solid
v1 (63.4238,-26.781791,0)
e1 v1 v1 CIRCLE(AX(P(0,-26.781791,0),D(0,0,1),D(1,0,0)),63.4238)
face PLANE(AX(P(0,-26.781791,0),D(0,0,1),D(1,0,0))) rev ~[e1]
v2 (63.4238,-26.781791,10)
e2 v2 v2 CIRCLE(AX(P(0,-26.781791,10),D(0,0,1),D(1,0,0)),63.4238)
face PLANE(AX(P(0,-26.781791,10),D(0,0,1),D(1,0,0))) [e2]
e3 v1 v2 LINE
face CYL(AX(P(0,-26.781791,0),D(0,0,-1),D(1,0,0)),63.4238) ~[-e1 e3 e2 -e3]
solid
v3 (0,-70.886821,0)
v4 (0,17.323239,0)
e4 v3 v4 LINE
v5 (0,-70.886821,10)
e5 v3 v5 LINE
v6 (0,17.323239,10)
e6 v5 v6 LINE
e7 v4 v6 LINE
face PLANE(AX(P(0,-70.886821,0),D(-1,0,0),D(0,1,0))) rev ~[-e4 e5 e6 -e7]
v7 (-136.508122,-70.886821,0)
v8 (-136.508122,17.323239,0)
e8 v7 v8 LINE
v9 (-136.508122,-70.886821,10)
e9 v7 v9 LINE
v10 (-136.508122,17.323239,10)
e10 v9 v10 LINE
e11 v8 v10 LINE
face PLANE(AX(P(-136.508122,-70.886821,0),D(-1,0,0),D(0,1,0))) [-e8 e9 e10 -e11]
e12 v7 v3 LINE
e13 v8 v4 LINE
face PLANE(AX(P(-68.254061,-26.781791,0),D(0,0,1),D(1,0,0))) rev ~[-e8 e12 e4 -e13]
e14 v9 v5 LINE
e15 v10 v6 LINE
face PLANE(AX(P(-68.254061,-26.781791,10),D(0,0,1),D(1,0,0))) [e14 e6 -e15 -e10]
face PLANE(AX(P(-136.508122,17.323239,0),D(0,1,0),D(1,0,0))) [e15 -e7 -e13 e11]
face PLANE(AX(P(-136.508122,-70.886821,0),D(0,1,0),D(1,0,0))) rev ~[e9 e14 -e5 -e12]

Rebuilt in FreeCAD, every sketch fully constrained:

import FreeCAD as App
import Part
import Sketcher
Q = App.Units.Quantity

doc = App.newDocument("Part")
params = doc.addObject("Spreadsheet::Sheet", "Params")
for row, (alias, value) in enumerate([
    ("pad1_length", "10 mm"),
    ("pad2_length", "10 mm"),
], start=1):
    params.set(f"A{row}", alias)
    params.set(f"B{row}", "=" + value)
    params.setAlias(f"B{row}", alias)

body = doc.addObject("PartDesign::Body", "Body")

# Sketch on XY plane
sketch1 = body.newObject("Sketcher::SketchObject", "Sketch")
sketch1.AttachmentSupport = (doc.getObject("XY_Plane"), [""])
sketch1.MapMode = "FlatFace"
sketch1.addGeometry(Part.LineSegment(App.Vector(-136.508122, 17.323239, 0), App.Vector(-136.508122, -70.886821, 0)), False)
sketch1.addGeometry(Part.LineSegment(App.Vector(-136.508122, -70.886821, 0), App.Vector(0, -70.886821, 0)), False)
sketch1.addGeometry(Part.LineSegment(App.Vector(0, -70.886821, 0), App.Vector(0, 17.323239, 0)), False)
sketch1.addGeometry(Part.LineSegment(App.Vector(0, 17.323239, 0), App.Vector(-136.508122, 17.323239, 0)), False)
sketch1.addConstraint(Sketcher.Constraint("Coincident", 0, 2, 1, 1))
sketch1.addConstraint(Sketcher.Constraint("Coincident", 1, 2, 2, 1))
sketch1.addConstraint(Sketcher.Constraint("Coincident", 2, 2, 3, 1))
sketch1.addConstraint(Sketcher.Constraint("Coincident", 3, 2, 0, 1))
sketch1.addConstraint(Sketcher.Constraint("Vertical", 0))
sketch1.addConstraint(Sketcher.Constraint("Horizontal", 1))
sketch1.addConstraint(Sketcher.Constraint("Vertical", 2))
sketch1.addConstraint(Sketcher.Constraint("Horizontal", 3))
sketch1.addConstraint(Sketcher.Constraint("PointOnObject", 1, 2, -2))
sketch1.addConstraint(Sketcher.Constraint("DistanceY", 0, 2, 0, 1, Q("88.210059 mm")))
sketch1.addConstraint(Sketcher.Constraint("DistanceX", 1, 1, 1, 2, Q("136.508122 mm")))
sketch1.addConstraint(Sketcher.Constraint("DistanceY", 0, 2, -1, 1, Q("70.886821 mm")))
pad1 = body.newObject("PartDesign::Pad", "Pad")
pad1.Profile = sketch1
pad1.setExpression("Length", "Params.pad1_length")
body2 = doc.addObject("PartDesign::Body", "Body001")

# Sketch on XY plane
sketch2 = body2.newObject("Sketcher::SketchObject", "Sketch001")
sketch2.AttachmentSupport = (doc.getObject("XY_Plane001"), [""])
sketch2.MapMode = "FlatFace"
sketch2.addGeometry(Part.Circle(App.Vector(0, -26.781791, 0), App.Vector(0, 0, 1), 63.4238), False)
sketch2.addConstraint(Sketcher.Constraint("PointOnObject", 0, 3, -2))
sketch2.addConstraint(Sketcher.Constraint("Diameter", 0, Q("126.8476 mm")))
sketch2.addConstraint(Sketcher.Constraint("DistanceY", 0, 3, -1, 1, Q("26.781791 mm")))
pad2 = body2.newObject("PartDesign::Pad", "Pad001")
pad2.Profile = sketch2
pad2.setExpression("Length", "Params.pad2_length")

doc.recompute()
